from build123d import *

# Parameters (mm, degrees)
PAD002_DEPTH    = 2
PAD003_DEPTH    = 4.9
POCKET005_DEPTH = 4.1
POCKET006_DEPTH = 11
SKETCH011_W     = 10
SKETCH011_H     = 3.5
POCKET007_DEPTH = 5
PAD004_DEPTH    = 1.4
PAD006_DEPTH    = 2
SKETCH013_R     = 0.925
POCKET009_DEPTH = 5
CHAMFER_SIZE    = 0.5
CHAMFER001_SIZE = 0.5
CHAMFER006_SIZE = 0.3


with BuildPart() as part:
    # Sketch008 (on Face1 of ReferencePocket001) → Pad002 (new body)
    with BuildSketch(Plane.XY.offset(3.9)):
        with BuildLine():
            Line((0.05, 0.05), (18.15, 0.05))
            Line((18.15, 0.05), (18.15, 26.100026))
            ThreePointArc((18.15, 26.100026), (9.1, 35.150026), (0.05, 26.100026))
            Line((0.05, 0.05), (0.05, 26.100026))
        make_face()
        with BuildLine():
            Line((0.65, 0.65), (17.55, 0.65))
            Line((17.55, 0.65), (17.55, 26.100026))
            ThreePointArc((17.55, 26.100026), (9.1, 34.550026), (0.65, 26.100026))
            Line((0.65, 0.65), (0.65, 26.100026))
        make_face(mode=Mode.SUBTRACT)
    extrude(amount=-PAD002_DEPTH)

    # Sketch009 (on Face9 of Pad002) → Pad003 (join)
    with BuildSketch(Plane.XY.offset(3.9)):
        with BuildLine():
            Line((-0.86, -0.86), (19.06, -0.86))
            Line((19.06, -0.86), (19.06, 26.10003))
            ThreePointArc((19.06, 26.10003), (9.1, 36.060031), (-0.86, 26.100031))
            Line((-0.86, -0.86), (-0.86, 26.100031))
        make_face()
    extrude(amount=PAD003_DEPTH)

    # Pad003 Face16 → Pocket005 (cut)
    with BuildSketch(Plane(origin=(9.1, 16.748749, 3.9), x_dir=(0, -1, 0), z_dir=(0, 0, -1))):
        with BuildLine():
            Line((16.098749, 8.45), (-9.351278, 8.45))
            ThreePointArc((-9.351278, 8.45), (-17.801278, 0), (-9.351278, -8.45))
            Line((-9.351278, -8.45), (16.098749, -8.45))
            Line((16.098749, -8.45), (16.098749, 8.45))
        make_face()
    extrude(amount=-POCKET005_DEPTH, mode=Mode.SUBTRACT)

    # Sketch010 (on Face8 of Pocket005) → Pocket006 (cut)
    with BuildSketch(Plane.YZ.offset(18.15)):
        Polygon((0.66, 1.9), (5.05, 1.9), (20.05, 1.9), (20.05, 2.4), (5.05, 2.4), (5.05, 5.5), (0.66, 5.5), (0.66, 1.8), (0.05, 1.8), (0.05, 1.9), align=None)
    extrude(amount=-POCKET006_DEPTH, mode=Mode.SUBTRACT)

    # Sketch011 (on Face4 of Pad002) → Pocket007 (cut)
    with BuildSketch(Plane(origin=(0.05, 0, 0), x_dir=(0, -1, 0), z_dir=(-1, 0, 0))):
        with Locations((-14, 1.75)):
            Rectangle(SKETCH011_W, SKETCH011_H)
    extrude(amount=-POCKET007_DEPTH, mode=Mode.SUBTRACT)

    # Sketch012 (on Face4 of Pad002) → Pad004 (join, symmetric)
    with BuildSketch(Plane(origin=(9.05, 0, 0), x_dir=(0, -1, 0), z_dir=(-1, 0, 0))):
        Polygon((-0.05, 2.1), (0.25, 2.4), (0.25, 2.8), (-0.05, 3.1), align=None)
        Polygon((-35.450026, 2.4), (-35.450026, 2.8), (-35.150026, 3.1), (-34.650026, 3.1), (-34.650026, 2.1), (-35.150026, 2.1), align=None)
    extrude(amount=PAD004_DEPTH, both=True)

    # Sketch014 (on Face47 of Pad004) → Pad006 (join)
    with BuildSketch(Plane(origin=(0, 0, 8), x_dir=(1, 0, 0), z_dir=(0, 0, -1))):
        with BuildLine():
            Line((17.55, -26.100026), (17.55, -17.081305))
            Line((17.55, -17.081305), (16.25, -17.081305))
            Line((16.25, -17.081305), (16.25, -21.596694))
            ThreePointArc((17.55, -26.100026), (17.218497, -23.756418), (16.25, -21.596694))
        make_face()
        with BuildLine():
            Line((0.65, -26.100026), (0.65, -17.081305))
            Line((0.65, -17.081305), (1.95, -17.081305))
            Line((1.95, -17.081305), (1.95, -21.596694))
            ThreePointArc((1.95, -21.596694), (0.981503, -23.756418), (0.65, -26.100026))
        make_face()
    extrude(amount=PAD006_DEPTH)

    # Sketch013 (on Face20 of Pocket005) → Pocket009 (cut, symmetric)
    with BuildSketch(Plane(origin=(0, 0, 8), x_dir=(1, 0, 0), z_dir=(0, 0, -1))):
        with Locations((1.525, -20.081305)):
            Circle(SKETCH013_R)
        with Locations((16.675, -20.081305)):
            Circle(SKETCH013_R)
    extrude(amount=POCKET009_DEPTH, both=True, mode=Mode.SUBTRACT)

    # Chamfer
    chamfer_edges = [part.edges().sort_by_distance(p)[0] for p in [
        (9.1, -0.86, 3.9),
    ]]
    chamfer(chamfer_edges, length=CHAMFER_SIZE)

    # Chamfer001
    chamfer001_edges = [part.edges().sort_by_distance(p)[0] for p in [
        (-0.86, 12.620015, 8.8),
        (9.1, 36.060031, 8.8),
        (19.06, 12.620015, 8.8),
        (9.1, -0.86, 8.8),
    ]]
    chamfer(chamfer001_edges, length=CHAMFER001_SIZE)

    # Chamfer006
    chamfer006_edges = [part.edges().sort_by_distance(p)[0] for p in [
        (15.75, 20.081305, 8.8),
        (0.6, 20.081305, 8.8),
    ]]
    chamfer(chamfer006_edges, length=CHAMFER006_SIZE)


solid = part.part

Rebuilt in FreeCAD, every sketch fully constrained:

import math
import FreeCAD as App
import Part
import Sketcher
Q = App.Units.Quantity


def edges_at(feature, points):
    """Names of the edges that pass closest to the given points."""
    edges = feature.Shape.Edges
    near = lambda p: min(range(len(edges)), key=lambda i: edges[i].distToShape(Part.Vertex(*p))[0])
    return sorted({f"Edge{near(p) + 1}" for p in points})


def add_polygon(sketch, points):
    """Adds a closed chain of lines whose ends are joined by coincident constraints."""
    first, n = sketch.GeometryCount, len(points)
    for a, b in zip(points, points[1:] + points[:1]):
        sketch.addGeometry(Part.LineSegment(App.Vector(*a, 0), App.Vector(*b, 0)), False)
    for i in range(n):
        sketch.addConstraint(Sketcher.Constraint("Coincident", first + i, 2, first + (i + 1) % n, 1))

doc = App.newDocument("Part")
body = doc.addObject("PartDesign::Body", "Body")

# Sketch on XY plane
sketch1 = doc.addObject("Sketcher::SketchObject", "Sketch")
body.addObject(sketch1)
sketch1.AttachmentSupport = (doc.XY_Plane, [""])
sketch1.MapMode = "FlatFace"
sketch1.AttachmentOffset = App.Placement(App.Vector(0, 0, 3.9), App.Rotation())
sketch1.addGeometry([
    Part.LineSegment(App.Vector(0, 0, 0), App.Vector(18, 0, 0)),  # 0
    Part.LineSegment(App.Vector(18, 0, 0), App.Vector(18, 26, 0)),  # 1
    Part.ArcOfCircle(Part.Circle(App.Vector(9, 26, 0), App.Vector(0, 0, 1), 9), math.radians(0), math.radians(180)),  # 2
    Part.LineSegment(App.Vector(0, 26, 0), App.Vector(0, 0, 0)),  # 3
    Part.LineSegment(App.Vector(18, 1, 0), App.Vector(1, 1, 0)),  # 4
    Part.LineSegment(App.Vector(1, 1, 0), App.Vector(1, 26, 0)),  # 5
    Part.ArcOfCircle(Part.Circle(App.Vector(9, 26, 0), App.Vector(0, 0, 1), 8), math.radians(0), math.radians(180)),  # 6
    Part.LineSegment(App.Vector(18, 26, 0), App.Vector(18, 1, 0)),  # 7
], False)
sketch1.addConstraint([
    Sketcher.Constraint("Coincident", 0, 2, 1, 1),
    Sketcher.Constraint("Tangent", 1, 2, 2, 1),
    Sketcher.Constraint("Tangent", 2, 2, 3, 1),
    Sketcher.Constraint("Coincident", 3, 2, 0, 1),
    Sketcher.Constraint("Coincident", 4, 2, 5, 1),
    Sketcher.Constraint("Tangent", 5, 2, 6, 2),
    Sketcher.Constraint("Tangent", 6, 1, 7, 1),
    Sketcher.Constraint("Coincident", 7, 2, 4, 1),
    Sketcher.Constraint("Horizontal", 0),
    Sketcher.Constraint("Vertical", 1),
    Sketcher.Constraint("Vertical", 3),
    Sketcher.Constraint("Horizontal", 4),
    Sketcher.Constraint("Vertical", 5),
    Sketcher.Constraint("Vertical", 7),
    Sketcher.Constraint("Coincident", 6, 3, 2, 3),
    Sketcher.Constraint("Radius", 2, Q("9.05 mm")),
    Sketcher.Constraint("Radius", 6, Q("8.45 mm")),
    Sketcher.Constraint("DistanceX", -1, 1, 2, 3, Q("9.1 mm")),
    Sketcher.Constraint("DistanceY", 3, 2, 4, 2, Q("0.6 mm")),
    Sketcher.Constraint("DistanceY", -1, 1, 0, 2, Q("0.05 mm")),
    Sketcher.Constraint("DistanceY", 1, 1, 1, 2, Q("26.050026 mm")),
])
pad1 = doc.addObject("PartDesign::Pad", "Pad")
body.addObject(pad1)
pad1.Profile = sketch1
pad1.Length = 2
pad1.Reversed = True

# Sketch on XY plane
sketch2 = doc.addObject("Sketcher::SketchObject", "Sketch001")
body.addObject(sketch2)
sketch2.AttachmentSupport = (doc.XY_Plane, [""])
sketch2.MapMode = "FlatFace"
sketch2.AttachmentOffset = App.Placement(App.Vector(0, 0, 3.9), App.Rotation())
sketch2.addGeometry([
    Part.LineSegment(App.Vector(-1, -1, 0), App.Vector(19, -1, 0)),
    Part.LineSegment(App.Vector(19, -1, 0), App.Vector(19, 26, 0)),
    Part.ArcOfCircle(Part.Circle(App.Vector(9, 26, 0), App.Vector(0, 0, 1), 10), math.radians(0), math.radians(180)),
    Part.LineSegment(App.Vector(-1, 26, 0), App.Vector(-1, -1, 0)),
], False)
sketch2.addConstraint([
    Sketcher.Constraint("Coincident", 0, 2, 1, 1),
    Sketcher.Constraint("Tangent", 1, 2, 2, 1),
    Sketcher.Constraint("Tangent", 2, 2, 3, 1),
    Sketcher.Constraint("Coincident", 3, 2, 0, 1),
    Sketcher.Constraint("Horizontal", 0),
    Sketcher.Constraint("Vertical", 1),
    Sketcher.Constraint("Vertical", 3),
    Sketcher.Constraint("Radius", 2, Q("9.96 mm")),
    Sketcher.Constraint("DistanceX", -1, 1, 2, 3, Q("9.1 mm")),
    Sketcher.Constraint("DistanceY", 0, 2, -1, 1, Q("0.86 mm")),
    Sketcher.Constraint("DistanceY", 1, 1, 1, 2, Q("26.96003 mm")),
])
pad2 = doc.addObject("PartDesign::Pad", "Pad001")
body.addObject(pad2)
pad2.Profile = sketch2
pad2.Length = 4.9

# Sketch on XY plane
sketch3 = doc.addObject("Sketcher::SketchObject", "Sketch002")
body.addObject(sketch3)
sketch3.AttachmentSupport = (doc.XY_Plane, [""])
sketch3.MapMode = "FlatFace"
sketch3.AttachmentOffset = App.Placement(App.Vector(0, 0, 3.9), App.Rotation())
sketch3.addGeometry([
    Part.LineSegment(App.Vector(1, 1, 0), App.Vector(1, 26, 0)),
    Part.ArcOfCircle(Part.Circle(App.Vector(9, 26, 0), App.Vector(0, 0, 1), 8), math.radians(0), math.radians(180)),
    Part.LineSegment(App.Vector(18, 26, 0), App.Vector(18, 1, 0)),
    Part.LineSegment(App.Vector(18, 1, 0), App.Vector(1, 1, 0)),
], False)
sketch3.addConstraint([
    Sketcher.Constraint("Tangent", 0, 2, 1, 2),
    Sketcher.Constraint("Tangent", 1, 1, 2, 1),
    Sketcher.Constraint("Coincident", 2, 2, 3, 1),
    Sketcher.Constraint("Coincident", 3, 2, 0, 1),
    Sketcher.Constraint("Vertical", 0),
    Sketcher.Constraint("Vertical", 2),
    Sketcher.Constraint("Horizontal", 3),
    Sketcher.Constraint("Radius", 1, Q("8.45 mm")),
    Sketcher.Constraint("DistanceX", -1, 1, 1, 3, Q("9.1 mm")),
    Sketcher.Constraint("DistanceY", -1, 1, 2, 2, Q("0.65 mm")),
    Sketcher.Constraint("DistanceY", 0, 1, 0, 2, Q("25.450027 mm")),
])
pocket1 = doc.addObject("PartDesign::Pocket", "Pocket")
body.addObject(pocket1)
pocket1.Profile = sketch3
pocket1.Length = 4.1
pocket1.Reversed = True

# Sketch on YZ plane
sketch4 = doc.addObject("Sketcher::SketchObject", "Sketch003")
body.addObject(sketch4)
sketch4.AttachmentSupport = (doc.YZ_Plane, [""])
sketch4.MapMode = "FlatFace"
sketch4.AttachmentOffset = App.Placement(App.Vector(0, 0, 18.15), App.Rotation())
add_polygon(sketch4, [(20.05, 1.9), (20.05, 2.4), (5.05, 2.4), (5.05, 5.5), (0.66, 5.5), (0.66, 1.8), (0.05, 1.8), (0.05, 1.9)])  # lines 0-7
sketch4.addConstraint([
    Sketcher.Constraint("Vertical", 0),
    Sketcher.Constraint("Horizontal", 1),
    Sketcher.Constraint("Vertical", 2),
    Sketcher.Constraint("Horizontal", 3),
    Sketcher.Constraint("Vertical", 4),
    Sketcher.Constraint("Horizontal", 5),
    Sketcher.Constraint("Vertical", 6),
    Sketcher.Constraint("Horizontal", 7),
    Sketcher.Constraint("DistanceX", 1, 2, 1, 1, Q("15 mm")),
    Sketcher.Constraint("DistanceX", 7, 1, 7, 2, Q("20 mm")),
    Sketcher.Constraint("DistanceY", 0, 1, 0, 2, Q("0.5 mm")),
    Sketcher.Constraint("DistanceY", 2, 1, 2, 2, Q("3.1 mm")),
    Sketcher.Constraint("DistanceY", 4, 2, 4, 1, Q("3.7 mm")),
    Sketcher.Constraint("DistanceX", 3, 2, 3, 1, Q("4.39 mm")),
    Sketcher.Constraint("DistanceY", -1, 1, 0, 2, Q("2.4 mm")),
    Sketcher.Constraint("DistanceX", -1, 1, 0, 2, Q("20.05 mm")),
])
pocket2 = doc.addObject("PartDesign::Pocket", "Pocket001")
body.addObject(pocket2)
pocket2.Profile = sketch4
pocket2.Length = 11

# Sketch on YZ plane
sketch5 = doc.addObject("Sketcher::SketchObject", "Sketch004")
body.addObject(sketch5)
sketch5.AttachmentSupport = (doc.YZ_Plane, [""])
sketch5.MapMode = "FlatFace"
sketch5.AttachmentOffset = App.Placement(App.Vector(0, 0, 0.05), App.Rotation())
add_polygon(sketch5, [(19, 3.5), (19, 0), (9, 0), (9, 3.5)])  # lines 0-3
sketch5.addConstraint([
    Sketcher.Constraint("Vertical", 0),
    Sketcher.Constraint("Horizontal", 1),
    Sketcher.Constraint("Vertical", 2),
    Sketcher.Constraint("Horizontal", 3),
    Sketcher.Constraint("PointOnObject", 0, 2, -1),
    Sketcher.Constraint("DistanceX", 1, 2, 1, 1, Q("10 mm")),
    Sketcher.Constraint("DistanceY", 0, 2, 0, 1, Q("3.5 mm")),
    Sketcher.Constraint("DistanceX", -1, 1, 0, 2, Q("19 mm")),
])
pocket3 = doc.addObject("PartDesign::Pocket", "Pocket002")
body.addObject(pocket3)
pocket3.Profile = sketch5
pocket3.Length = 5
pocket3.Reversed = True

# Sketch on YZ plane
sketch6 = doc.addObject("Sketcher::SketchObject", "Sketch005")
body.addObject(sketch6)
sketch6.AttachmentSupport = (doc.YZ_Plane, [""])
sketch6.MapMode = "FlatFace"
sketch6.AttachmentOffset = App.Placement(App.Vector(0, 0, 9.05), App.Rotation())
add_polygon(sketch6, [(0.05, 2.1), (-0.25, 2.4), (-0.25, 2.8), (0.05, 3.1)])  # lines 0-3
add_polygon(sketch6, [(35.450026, 2.8), (35.450026, 2.4), (35.150026, 2.1), (34.650026, 2.1), (34.650026, 3.1), (35.150026, 3.1)])  # lines 4-9
sketch6.addConstraint([
    Sketcher.Constraint("Vertical", 1),
    Sketcher.Constraint("Vertical", 3),
    Sketcher.Constraint("Vertical", 4),
    Sketcher.Constraint("Horizontal", 6),
    Sketcher.Constraint("Vertical", 7),
    Sketcher.Constraint("Horizontal", 8),
    Sketcher.Constraint("Perpendicular", 0, 2),
    Sketcher.Constraint("Parallel", 2, 5),
    Sketcher.Constraint("Perpendicular", 5, 9),
    Sketcher.Constraint("Horizontal", 0, 2, 4, 2),
    Sketcher.Constraint("Horizontal", 3, 2, 5, 2),
    Sketcher.Constraint("Horizontal", 2, 2, 7, 2),
    Sketcher.Constraint("Horizontal", 1, 2, 9, 2),
    Sketcher.Constraint("Vertical", 5, 2, 8, 2),
    Sketcher.Constraint("DistanceY", 3, 2, 3, 1, Q("1 mm")),
    Sketcher.Constraint("DistanceX", 6, 2, 6, 1, Q("0.5 mm")),
    Sketcher.Constraint("DistanceY", 1, 1, 1, 2, Q("0.4 mm")),
    Sketcher.Constraint("DistanceY", -1, 1, 0, 2, Q("2.4 mm")),
    Sketcher.Constraint("DistanceX", 0, 2, -1, 1, Q("0.25 mm")),
    Sketcher.Constraint("DistanceX", -1, 1, 4, 2, Q("35.450026 mm")),
])
pad3 = doc.addObject("PartDesign::Pad", "Pad002")
body.addObject(pad3)
pad3.Profile = sketch6
pad3.Length = 2.8
pad3.Midplane = True

# Sketch on XY plane
sketch7 = doc.addObject("Sketcher::SketchObject", "Sketch006")
body.addObject(sketch7)
sketch7.AttachmentSupport = (doc.XY_Plane, [""])
sketch7.MapMode = "FlatFace"
sketch7.AttachmentOffset = App.Placement(App.Vector(0, 0, 8), App.Rotation())
sketch7.addGeometry([
    Part.LineSegment(App.Vector(17.6, 26.1, 0), App.Vector(17.6, 17.1, 0)),  # 0
    Part.LineSegment(App.Vector(17.6, 17.1, 0), App.Vector(16.2, 17.1, 0)),  # 1
    Part.LineSegment(App.Vector(16.2, 17.1, 0), App.Vector(16.2, 21.6, 0)),  # 2
    Part.ArcOfCircle(Part.Circle(App.Vector(9.1, 26.1, 0), App.Vector(0, 0, 1), 8.5), math.radians(-32), math.radians(0)),  # 3
    Part.LineSegment(App.Vector(0.7, 17.1, 0), App.Vector(0.7, 26.1, 0)),  # 4
    Part.ArcOfCircle(Part.Circle(App.Vector(9.1, 26.1, 0), App.Vector(0, 0, 1), 8.5), math.radians(-180), math.radians(-148)),  # 5
    Part.LineSegment(App.Vector(1.9, 21.6, 0), App.Vector(1.9, 17.1, 0)),  # 6
    Part.LineSegment(App.Vector(1.9, 17.1, 0), App.Vector(0.7, 17.1, 0)),  # 7
], False)
sketch7.addConstraint([
    Sketcher.Constraint("Coincident", 0, 2, 1, 1),
    Sketcher.Constraint("Coincident", 1, 2, 2, 1),
    Sketcher.Constraint("Coincident", 2, 2, 3, 1),
    Sketcher.Constraint("Tangent", 3, 2, 0, 1),
    Sketcher.Constraint("Tangent", 4, 2, 5, 1),
    Sketcher.Constraint("Coincident", 5, 2, 6, 1),
    Sketcher.Constraint("Coincident", 6, 2, 7, 1),
    Sketcher.Constraint("Coincident", 7, 2, 4, 1),
    Sketcher.Constraint("Vertical", 0),
    Sketcher.Constraint("Horizontal", 1),
    Sketcher.Constraint("Vertical", 2),
    Sketcher.Constraint("Vertical", 4),
    Sketcher.Constraint("Vertical", 6),
    Sketcher.Constraint("Horizontal", 7),
    Sketcher.Constraint("Equal", 3, 5),
    Sketcher.Constraint("Horizontal", 3, 3, 5, 3),
    Sketcher.Constraint("Horizontal", 2, 2, 5, 2),
    Sketcher.Constraint("Horizontal", 1, 2, 6, 2),
    Sketcher.Constraint("DistanceX", 1, 2, 1, 1, Q("1.3 mm")),
    Sketcher.Constraint("DistanceX", 4, 2, 2, 2, Q("15.6 mm")),
    Sketcher.Constraint("DistanceX", -1, 1, 0, 2, Q("17.55 mm")),
    Sketcher.Constraint("Radius", 3, Q("8.450011 mm")),
    Sketcher.Constraint("DistanceY", 0, 2, 0, 1, Q("9.018721 mm")),
    Sketcher.Constraint("DistanceY", -1, 1, 3, 3, Q("26.100029 mm")),
])
pad4 = doc.addObject("PartDesign::Pad", "Pad003")
body.addObject(pad4)
pad4.Profile = sketch7
pad4.Length = 2
pad4.Reversed = True

# Sketch on XY plane
sketch8 = doc.addObject("Sketcher::SketchObject", "Sketch007")
body.addObject(sketch8)
sketch8.AttachmentSupport = (doc.XY_Plane, [""])
sketch8.MapMode = "FlatFace"
sketch8.AttachmentOffset = App.Placement(App.Vector(0, 0, 8), App.Rotation())
sketch8.addGeometry([
    Part.Circle(App.Vector(1.5, 20.1, 0), App.Vector(0, 0, 1), 0.9),
    Part.Circle(App.Vector(16.7, 20.1, 0), App.Vector(0, 0, 1), 0.9),
], False)
sketch8.addConstraint([
    Sketcher.Constraint("Equal", 0, 1),
    Sketcher.Constraint("Horizontal", 0, 3, 1, 3),
    Sketcher.Constraint("Diameter", 0, Q("1.85 mm")),
    Sketcher.Constraint("DistanceX", 0, 3, 1, 3, Q("15.15 mm")),
    Sketcher.Constraint("DistanceX", -1, 1, 0, 3, Q("1.525 mm")),
    Sketcher.Constraint("DistanceY", -1, 1, 0, 3, Q("20.081305 mm")),
])
pocket4 = doc.addObject("PartDesign::Pocket", "Pocket003")
body.addObject(pocket4)
pocket4.Profile = sketch8
pocket4.Length = 10
pocket4.Midplane = True
doc.recompute()

chamfer = doc.addObject("PartDesign::Chamfer", "Chamfer")
body.addObject(chamfer)
chamfer.Base = (pocket4, edges_at(pocket4, [(9.1, -0.86, 3.9)]))
chamfer.Size = 0.5
doc.recompute()

chamfer2 = doc.addObject("PartDesign::Chamfer", "Chamfer001")
body.addObject(chamfer2)
chamfer2.Base = (chamfer, edges_at(chamfer, [
    (-0.86, 12.62, 8.8),
    (9.1, 36.06, 8.8),
    (19.06, 12.62, 8.8),
    (9.1, -0.86, 8.8),
]))
chamfer2.Size = 0.5
doc.recompute()

chamfer3 = doc.addObject("PartDesign::Chamfer", "Chamfer002")
body.addObject(chamfer3)
chamfer3.Base = (chamfer2, edges_at(chamfer2, [(15.75, 20.081, 8.8), (0.6, 20.081, 8.8)]))
chamfer3.Size = 0.3

doc.recompute()
